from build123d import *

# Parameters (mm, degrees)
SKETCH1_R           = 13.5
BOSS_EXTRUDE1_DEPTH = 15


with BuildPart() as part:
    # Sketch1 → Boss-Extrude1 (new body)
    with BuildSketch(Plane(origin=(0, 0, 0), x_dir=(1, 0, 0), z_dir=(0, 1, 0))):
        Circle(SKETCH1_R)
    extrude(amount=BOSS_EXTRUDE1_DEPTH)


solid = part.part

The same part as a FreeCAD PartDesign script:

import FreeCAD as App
import Part
import Sketcher
Q = App.Units.Quantity

doc = App.newDocument("Part")
params = doc.addObject("Spreadsheet::Sheet", "Params")
for row, (alias, value) in enumerate([
    ("sketch1_diameter", "27 mm"),
    ("pad1_length", "15 mm"),
], start=1):
    params.set(f"A{row}", alias)
    params.set(f"B{row}", "=" + value)
    params.setAlias(f"B{row}", alias)

body = doc.addObject("PartDesign::Body", "Body")

# Sketch on XZ plane
sketch1 = body.newObject("Sketcher::SketchObject", "Sketch")
sketch1.AttachmentSupport = (doc.getObject("XZ_Plane"), [""])
sketch1.MapMode = "FlatFace"
sketch1.addGeometry(Part.Circle(App.Vector(0, 0, 0), App.Vector(0, 0, 1), 13.5), False)
sketch1.addConstraint([
    Sketcher.Constraint("Coincident", 0, 3, -1, 1),
    Sketcher.Constraint("Diameter", 0, Q("27 mm")),
])
sketch1.setExpression("Constraints[1]", "Params.sketch1_diameter")
pad1 = body.newObject("PartDesign::Pad", "Pad")
pad1.Profile = sketch1
pad1.setExpression("Length", "Params.pad1_length")
pad1.Reversed = True

doc.recompute()
